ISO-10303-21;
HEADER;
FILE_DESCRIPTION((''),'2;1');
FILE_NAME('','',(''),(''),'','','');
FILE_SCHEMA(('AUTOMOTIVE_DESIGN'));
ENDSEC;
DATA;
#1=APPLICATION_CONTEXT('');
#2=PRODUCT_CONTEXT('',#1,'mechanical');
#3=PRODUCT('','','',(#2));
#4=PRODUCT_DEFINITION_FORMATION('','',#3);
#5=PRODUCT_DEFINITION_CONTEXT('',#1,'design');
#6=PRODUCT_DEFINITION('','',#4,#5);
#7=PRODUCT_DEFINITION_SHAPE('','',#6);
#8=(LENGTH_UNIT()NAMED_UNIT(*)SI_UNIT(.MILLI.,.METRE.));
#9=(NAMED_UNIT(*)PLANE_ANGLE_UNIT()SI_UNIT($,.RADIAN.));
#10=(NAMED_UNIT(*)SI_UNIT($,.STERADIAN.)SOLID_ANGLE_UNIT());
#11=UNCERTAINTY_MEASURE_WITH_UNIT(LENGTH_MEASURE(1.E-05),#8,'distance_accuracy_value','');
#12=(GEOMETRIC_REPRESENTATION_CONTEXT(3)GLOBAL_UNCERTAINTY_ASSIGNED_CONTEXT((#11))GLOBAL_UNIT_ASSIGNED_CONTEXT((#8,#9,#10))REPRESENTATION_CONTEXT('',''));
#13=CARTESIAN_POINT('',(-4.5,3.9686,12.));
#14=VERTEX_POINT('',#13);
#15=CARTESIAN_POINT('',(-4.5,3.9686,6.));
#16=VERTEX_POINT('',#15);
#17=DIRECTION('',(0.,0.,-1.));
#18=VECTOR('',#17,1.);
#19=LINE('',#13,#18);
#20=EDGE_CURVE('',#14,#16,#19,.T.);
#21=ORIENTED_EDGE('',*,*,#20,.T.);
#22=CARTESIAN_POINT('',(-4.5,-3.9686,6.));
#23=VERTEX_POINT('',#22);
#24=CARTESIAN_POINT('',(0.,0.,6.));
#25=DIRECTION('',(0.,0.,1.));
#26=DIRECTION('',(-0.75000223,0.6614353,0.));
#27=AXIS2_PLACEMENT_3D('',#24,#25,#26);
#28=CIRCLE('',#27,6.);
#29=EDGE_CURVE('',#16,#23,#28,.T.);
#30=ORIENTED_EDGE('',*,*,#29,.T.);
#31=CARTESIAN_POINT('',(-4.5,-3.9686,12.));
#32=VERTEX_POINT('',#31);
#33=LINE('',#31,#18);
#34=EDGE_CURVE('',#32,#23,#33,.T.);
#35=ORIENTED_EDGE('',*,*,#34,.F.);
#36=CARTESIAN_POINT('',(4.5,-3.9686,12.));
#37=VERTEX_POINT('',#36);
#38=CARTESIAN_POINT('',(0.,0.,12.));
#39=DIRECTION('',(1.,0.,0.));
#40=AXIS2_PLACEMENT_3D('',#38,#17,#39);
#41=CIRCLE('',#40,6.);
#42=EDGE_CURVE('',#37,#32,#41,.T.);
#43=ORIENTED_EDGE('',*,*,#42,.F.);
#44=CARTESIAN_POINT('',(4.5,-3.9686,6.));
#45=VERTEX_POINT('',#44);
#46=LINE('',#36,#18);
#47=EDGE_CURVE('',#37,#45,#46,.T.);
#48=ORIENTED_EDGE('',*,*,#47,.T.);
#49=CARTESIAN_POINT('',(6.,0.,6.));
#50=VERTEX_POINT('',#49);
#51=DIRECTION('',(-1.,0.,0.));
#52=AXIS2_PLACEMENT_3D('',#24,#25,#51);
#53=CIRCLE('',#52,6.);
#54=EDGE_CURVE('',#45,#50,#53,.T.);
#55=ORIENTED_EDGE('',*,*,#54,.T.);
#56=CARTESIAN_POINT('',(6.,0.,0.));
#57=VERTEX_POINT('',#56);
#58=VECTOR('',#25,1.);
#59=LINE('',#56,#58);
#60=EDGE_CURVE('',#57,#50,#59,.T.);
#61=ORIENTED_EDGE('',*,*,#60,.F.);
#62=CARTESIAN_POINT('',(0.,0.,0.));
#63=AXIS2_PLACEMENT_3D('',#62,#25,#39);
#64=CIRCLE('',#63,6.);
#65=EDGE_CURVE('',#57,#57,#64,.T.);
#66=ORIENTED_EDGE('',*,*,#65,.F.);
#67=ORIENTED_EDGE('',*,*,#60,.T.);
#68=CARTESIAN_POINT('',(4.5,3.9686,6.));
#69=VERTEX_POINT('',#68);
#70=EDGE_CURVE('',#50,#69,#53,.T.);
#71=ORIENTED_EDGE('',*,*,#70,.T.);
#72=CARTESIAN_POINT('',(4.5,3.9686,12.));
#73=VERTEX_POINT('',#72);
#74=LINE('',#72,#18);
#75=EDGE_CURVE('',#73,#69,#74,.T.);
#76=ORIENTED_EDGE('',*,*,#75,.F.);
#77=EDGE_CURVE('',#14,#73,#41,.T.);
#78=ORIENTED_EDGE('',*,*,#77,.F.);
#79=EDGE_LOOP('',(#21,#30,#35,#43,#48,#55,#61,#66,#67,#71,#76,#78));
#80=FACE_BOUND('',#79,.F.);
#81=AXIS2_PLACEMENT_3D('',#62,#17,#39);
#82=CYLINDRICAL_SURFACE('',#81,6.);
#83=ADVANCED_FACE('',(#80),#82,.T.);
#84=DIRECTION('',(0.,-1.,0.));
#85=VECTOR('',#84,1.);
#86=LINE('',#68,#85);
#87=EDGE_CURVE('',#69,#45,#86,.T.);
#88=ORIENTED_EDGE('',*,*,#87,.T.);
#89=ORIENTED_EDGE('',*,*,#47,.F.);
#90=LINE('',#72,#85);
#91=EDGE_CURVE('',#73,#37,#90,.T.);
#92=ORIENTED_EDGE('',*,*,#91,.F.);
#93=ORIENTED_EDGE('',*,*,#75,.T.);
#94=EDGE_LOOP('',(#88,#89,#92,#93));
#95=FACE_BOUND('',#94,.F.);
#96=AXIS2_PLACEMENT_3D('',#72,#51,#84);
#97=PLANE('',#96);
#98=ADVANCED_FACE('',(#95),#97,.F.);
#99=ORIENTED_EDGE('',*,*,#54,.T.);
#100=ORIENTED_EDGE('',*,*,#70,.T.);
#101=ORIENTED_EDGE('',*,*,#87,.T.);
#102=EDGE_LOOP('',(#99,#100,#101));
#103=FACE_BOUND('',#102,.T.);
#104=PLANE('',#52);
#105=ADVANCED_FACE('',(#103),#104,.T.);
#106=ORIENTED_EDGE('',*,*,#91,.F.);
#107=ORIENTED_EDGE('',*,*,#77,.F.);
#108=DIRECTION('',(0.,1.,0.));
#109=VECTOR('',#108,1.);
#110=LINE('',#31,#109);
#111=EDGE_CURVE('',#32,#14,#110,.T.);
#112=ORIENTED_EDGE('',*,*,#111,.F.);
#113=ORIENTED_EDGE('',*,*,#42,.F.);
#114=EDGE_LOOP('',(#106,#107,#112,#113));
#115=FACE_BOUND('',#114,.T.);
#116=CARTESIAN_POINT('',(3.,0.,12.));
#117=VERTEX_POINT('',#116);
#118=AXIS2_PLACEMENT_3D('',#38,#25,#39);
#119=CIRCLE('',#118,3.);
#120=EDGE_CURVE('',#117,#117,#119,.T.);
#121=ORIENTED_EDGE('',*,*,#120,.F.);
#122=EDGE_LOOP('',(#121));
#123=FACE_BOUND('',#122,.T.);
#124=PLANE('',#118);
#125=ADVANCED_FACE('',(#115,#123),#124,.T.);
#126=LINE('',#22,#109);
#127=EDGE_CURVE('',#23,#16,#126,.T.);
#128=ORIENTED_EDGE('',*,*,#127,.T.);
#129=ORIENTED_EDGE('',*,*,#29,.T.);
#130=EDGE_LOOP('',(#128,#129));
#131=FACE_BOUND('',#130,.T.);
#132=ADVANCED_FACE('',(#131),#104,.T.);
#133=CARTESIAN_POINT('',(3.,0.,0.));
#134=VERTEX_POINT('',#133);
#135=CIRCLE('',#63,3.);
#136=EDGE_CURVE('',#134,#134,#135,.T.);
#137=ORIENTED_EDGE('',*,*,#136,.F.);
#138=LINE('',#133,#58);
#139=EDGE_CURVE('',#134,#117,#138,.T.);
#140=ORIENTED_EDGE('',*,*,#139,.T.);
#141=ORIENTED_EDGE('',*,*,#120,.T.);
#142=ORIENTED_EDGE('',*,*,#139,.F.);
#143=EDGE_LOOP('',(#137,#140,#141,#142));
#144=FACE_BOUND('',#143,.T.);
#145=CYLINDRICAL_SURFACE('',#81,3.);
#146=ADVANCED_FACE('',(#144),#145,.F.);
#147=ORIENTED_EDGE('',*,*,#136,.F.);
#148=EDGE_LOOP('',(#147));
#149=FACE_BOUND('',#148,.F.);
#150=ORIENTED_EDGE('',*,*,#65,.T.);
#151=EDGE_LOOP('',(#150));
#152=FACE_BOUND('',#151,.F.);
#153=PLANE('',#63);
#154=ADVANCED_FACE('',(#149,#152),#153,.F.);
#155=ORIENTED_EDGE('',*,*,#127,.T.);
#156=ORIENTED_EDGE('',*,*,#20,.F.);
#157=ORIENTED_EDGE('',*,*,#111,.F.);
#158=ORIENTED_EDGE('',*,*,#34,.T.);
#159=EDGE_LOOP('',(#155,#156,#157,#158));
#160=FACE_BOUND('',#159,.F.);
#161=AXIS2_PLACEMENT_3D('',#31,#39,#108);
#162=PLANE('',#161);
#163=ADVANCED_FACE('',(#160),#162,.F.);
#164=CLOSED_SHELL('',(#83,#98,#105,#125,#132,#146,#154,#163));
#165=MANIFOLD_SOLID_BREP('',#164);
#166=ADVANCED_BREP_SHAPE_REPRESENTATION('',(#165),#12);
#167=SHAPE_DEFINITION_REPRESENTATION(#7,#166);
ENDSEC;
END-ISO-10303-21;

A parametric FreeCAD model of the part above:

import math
import FreeCAD as App
import Part
import Sketcher
from FreeCAD import Vector
Q = App.Units.Quantity

doc = App.newDocument("Part")
body = doc.addObject("PartDesign::Body", "Body")

# Sketch on XY plane
sketch1 = body.newObject("Sketcher::SketchObject", "Sketch")
sketch1.AttachmentSupport = (doc.getObject("XY_Plane"), [""])
sketch1.MapMode = "FlatFace"
sketch1.addGeometry([
    Part.Circle(Vector(0, 0, 0), Vector(0, 0, 1), 6),
    Part.Circle(Vector(0, 0, 0), Vector(0, 0, 1), 3),
], False)
sketch1.addConstraint([
    Sketcher.Constraint("Coincident", 0, 3, -1, 1),
    Sketcher.Constraint("Coincident", 1, 3, -1, 1),
    Sketcher.Constraint("Diameter", 0, Q("12 mm")),
    Sketcher.Constraint("Diameter", 1, Q("6 mm")),
])
pad1 = body.newObject("PartDesign::Pad", "Pad")
pad1.Profile = sketch1
pad1.Length = 12

# Sketch on XY plane
sketch2 = body.newObject("Sketcher::SketchObject", "Sketch001")
sketch2.AttachmentSupport = (doc.getObject("XY_Plane"), [""])
sketch2.MapMode = "FlatFace"
sketch2.AttachmentOffset = App.Placement(Vector(0, 0, 12), App.Rotation())
sketch2.addGeometry([
    Part.ArcOfCircle(Part.Circle(Vector(0, 0, 0), Vector(0, 0, 1), 6), math.radians(139), math.radians(221)),
    Part.LineSegment(Vector(-4, 4, 0), Vector(-4, -4, 0)),
    Part.LineSegment(Vector(4, 4, 0), Vector(4, -4, 0)),
    Part.ArcOfCircle(Part.Circle(Vector(0, 0, 0), Vector(0, 0, 1), 6), math.radians(-41), math.radians(41)),
], False)
sketch2.addConstraint([
    Sketcher.Constraint("Coincident", 0, 1, 1, 1),
    Sketcher.Constraint("Coincident", 1, 2, 0, 2),
    Sketcher.Constraint("Coincident", 2, 1, 3, 2),
    Sketcher.Constraint("Coincident", 3, 1, 2, 2),
    Sketcher.Constraint("Vertical", 1),
    Sketcher.Constraint("Vertical", 2),
    Sketcher.Constraint("Coincident", 0, 3, -1, 1),
    Sketcher.Constraint("Coincident", 3, 3, -1, 1),
    Sketcher.Constraint("Equal", 0, 3),
    Sketcher.Constraint("Horizontal", 0, 1, 2, 1),
    Sketcher.Constraint("Radius", 0, Q("6 mm")),
    Sketcher.Constraint("DistanceX", 0, 1, 2, 1, Q("9 mm")),
])
pocket1 = body.newObject("PartDesign::Pocket", "Pocket")
pocket1.Profile = sketch2
pocket1.Length = 6

doc.recompute()
